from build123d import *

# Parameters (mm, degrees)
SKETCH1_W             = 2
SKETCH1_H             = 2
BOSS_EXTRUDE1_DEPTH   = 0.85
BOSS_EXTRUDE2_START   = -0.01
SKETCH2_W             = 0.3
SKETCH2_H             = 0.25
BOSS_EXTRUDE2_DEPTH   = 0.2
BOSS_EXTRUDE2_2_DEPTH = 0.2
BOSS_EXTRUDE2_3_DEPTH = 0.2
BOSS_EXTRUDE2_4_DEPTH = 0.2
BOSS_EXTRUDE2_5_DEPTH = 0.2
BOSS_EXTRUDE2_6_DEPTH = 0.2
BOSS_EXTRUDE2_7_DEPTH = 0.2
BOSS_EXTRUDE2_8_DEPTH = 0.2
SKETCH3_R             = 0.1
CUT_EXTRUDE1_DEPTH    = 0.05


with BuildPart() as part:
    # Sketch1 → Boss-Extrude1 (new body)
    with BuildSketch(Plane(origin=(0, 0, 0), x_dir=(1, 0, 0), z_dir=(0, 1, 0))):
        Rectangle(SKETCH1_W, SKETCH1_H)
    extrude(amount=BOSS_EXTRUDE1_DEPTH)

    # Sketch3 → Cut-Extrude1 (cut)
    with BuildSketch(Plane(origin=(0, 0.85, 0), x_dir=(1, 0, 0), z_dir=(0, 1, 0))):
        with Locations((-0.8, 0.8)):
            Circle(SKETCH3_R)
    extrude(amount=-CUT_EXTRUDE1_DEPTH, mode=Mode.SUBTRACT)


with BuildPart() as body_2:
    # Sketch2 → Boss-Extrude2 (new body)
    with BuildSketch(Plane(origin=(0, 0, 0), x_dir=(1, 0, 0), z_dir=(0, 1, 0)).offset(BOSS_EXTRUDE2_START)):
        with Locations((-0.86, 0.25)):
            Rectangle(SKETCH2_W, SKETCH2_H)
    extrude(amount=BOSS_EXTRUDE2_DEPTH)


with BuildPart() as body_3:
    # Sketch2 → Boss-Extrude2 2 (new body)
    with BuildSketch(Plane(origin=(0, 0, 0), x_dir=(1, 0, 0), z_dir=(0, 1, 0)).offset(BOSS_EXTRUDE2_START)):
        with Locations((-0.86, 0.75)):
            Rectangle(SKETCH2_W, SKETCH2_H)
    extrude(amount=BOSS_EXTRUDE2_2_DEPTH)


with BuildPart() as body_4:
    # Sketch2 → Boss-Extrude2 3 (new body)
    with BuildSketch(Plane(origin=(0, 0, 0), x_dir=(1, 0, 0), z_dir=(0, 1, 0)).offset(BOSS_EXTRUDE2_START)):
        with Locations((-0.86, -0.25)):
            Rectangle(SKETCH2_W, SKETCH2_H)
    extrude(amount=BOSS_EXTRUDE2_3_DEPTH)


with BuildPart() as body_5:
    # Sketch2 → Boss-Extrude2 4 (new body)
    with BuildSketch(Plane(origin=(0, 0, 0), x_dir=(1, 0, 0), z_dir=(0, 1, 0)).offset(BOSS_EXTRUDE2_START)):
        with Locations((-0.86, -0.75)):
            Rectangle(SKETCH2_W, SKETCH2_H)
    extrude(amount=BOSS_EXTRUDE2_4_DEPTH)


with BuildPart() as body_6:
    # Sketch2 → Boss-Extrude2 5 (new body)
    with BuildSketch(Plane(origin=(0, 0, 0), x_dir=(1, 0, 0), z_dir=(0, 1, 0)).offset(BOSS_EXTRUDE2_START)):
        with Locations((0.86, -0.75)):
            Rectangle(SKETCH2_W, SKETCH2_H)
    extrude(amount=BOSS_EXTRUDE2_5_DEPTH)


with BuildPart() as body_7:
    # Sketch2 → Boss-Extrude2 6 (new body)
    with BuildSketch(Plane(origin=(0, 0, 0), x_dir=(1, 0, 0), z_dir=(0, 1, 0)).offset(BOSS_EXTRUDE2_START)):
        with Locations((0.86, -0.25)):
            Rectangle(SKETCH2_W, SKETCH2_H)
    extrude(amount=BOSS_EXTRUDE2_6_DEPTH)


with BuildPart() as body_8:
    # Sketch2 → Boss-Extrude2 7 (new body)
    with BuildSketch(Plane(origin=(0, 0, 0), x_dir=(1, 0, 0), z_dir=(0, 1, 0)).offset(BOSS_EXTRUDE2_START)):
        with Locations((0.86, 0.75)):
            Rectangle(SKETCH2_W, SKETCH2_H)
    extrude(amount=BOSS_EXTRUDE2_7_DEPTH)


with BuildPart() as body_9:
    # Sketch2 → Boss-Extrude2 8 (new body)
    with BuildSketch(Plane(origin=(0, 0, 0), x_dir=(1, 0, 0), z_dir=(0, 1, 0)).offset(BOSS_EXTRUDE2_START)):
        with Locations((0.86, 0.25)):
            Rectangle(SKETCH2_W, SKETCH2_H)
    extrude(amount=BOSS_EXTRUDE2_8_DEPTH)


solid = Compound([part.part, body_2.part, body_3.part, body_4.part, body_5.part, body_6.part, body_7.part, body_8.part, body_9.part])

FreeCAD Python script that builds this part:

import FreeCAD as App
import Part
import Sketcher
from FreeCAD import Vector

doc = App.newDocument("Part")
body = doc.addObject("PartDesign::Body", "Body")

# Sketch on XZ plane
sketch1 = doc.addObject("Sketcher::SketchObject", "Sketch")
body.addObject(sketch1)
sketch1.AttachmentSupport = (doc.XZ_Plane, [""])
sketch1.MapMode = "FlatFace"
sketch1.addGeometry(Part.LineSegment(Vector(-1, -1, 0), Vector(-1, 1, 0)), False)
sketch1.addGeometry(Part.LineSegment(Vector(-1, 1, 0), Vector(1, 1, 0)), False)
sketch1.addGeometry(Part.LineSegment(Vector(1, 1, 0), Vector(1, -1, 0)), False)
sketch1.addGeometry(Part.LineSegment(Vector(1, -1, 0), Vector(-1, -1, 0)), False)
sketch1.addConstraint(Sketcher.Constraint("Coincident", 0, 2, 1, 1))
sketch1.addConstraint(Sketcher.Constraint("Coincident", 1, 2, 2, 1))
sketch1.addConstraint(Sketcher.Constraint("Coincident", 2, 2, 3, 1))
sketch1.addConstraint(Sketcher.Constraint("Coincident", 3, 2, 0, 1))
sketch1.addConstraint(Sketcher.Constraint("Vertical", 0))
sketch1.addConstraint(Sketcher.Constraint("Horizontal", 1))
sketch1.addConstraint(Sketcher.Constraint("Vertical", 2))
sketch1.addConstraint(Sketcher.Constraint("Horizontal", 3))
sketch1.addConstraint(Sketcher.Constraint("Symmetric", 0, 2, 2, 2, -1, 1))
sketch1.addConstraint(Sketcher.Constraint("Equal", 3, 0))
sketch1.addConstraint(Sketcher.Constraint("DistanceX", 1, 1, 1, 2, 2.0))
pad1 = doc.addObject("PartDesign::Pad", "Pad")
body.addObject(pad1)
pad1.Profile = sketch1
pad1.Length = 0.85
pad1.Reversed = True

# Sketch on XZ plane
sketch2 = doc.addObject("Sketcher::SketchObject", "Sketch001")
body.addObject(sketch2)
sketch2.AttachmentSupport = (doc.XZ_Plane, [""])
sketch2.MapMode = "FlatFace"
sketch2.AttachmentOffset = App.Placement(Vector(0, 0, -0.85), App.Rotation())
sketch2.addGeometry(Part.Circle(Vector(-0.8, -0.8, 0), Vector(0, 0, 1), 0.1), False)
sketch2.addConstraint(Sketcher.Constraint("Diameter", 0, 0.2))
sketch2.addConstraint(Sketcher.Constraint("DistanceX", 0, 3, -1, 1, 0.8))
sketch2.addConstraint(Sketcher.Constraint("DistanceY", 0, 3, -1, 1, 0.8))
pocket1 = doc.addObject("PartDesign::Pocket", "Pocket")
body.addObject(pocket1)
pocket1.Profile = sketch2
pocket1.Length = 0.05
pocket1.Reversed = True
body2 = doc.addObject("PartDesign::Body", "Body001")

# Sketch on XZ plane
sketch3 = doc.addObject("Sketcher::SketchObject", "Sketch002")
body2.addObject(sketch3)
sketch3.AttachmentSupport = (doc.getObject("XZ_Plane001"), [""])
sketch3.MapMode = "FlatFace"
sketch3.AttachmentOffset = App.Placement(Vector(0, 0, 0.01), App.Rotation())
sketch3.addGeometry(Part.LineSegment(Vector(-1.01, -0.375, 0), Vector(-1.01, -0.125, 0)), False)
sketch3.addGeometry(Part.LineSegment(Vector(-1.01, -0.125, 0), Vector(-0.71, -0.125, 0)), False)
sketch3.addGeometry(Part.LineSegment(Vector(-0.71, -0.125, 0), Vector(-0.71, -0.375, 0)), False)
sketch3.addGeometry(Part.LineSegment(Vector(-0.71, -0.375, 0), Vector(-1.01, -0.375, 0)), False)
sketch3.addConstraint(Sketcher.Constraint("Coincident", 0, 2, 1, 1))
sketch3.addConstraint(Sketcher.Constraint("Coincident", 1, 2, 2, 1))
sketch3.addConstraint(Sketcher.Constraint("Coincident", 2, 2, 3, 1))
sketch3.addConstraint(Sketcher.Constraint("Coincident", 3, 2, 0, 1))
sketch3.addConstraint(Sketcher.Constraint("Vertical", 0))
sketch3.addConstraint(Sketcher.Constraint("Horizontal", 1))
sketch3.addConstraint(Sketcher.Constraint("Vertical", 2))
sketch3.addConstraint(Sketcher.Constraint("Horizontal", 3))
sketch3.addConstraint(Sketcher.Constraint("DistanceX", 1, 1, 1, 2, 0.3))
sketch3.addConstraint(Sketcher.Constraint("DistanceY", 0, 1, 0, 2, 0.25))
sketch3.addConstraint(Sketcher.Constraint("DistanceX", 0, 2, -1, 1, 1.01))
sketch3.addConstraint(Sketcher.Constraint("DistanceY", 0, 2, -1, 1, 0.125))
pad2 = doc.addObject("PartDesign::Pad", "Pad001")
body2.addObject(pad2)
pad2.Profile = sketch3
pad2.Length = 0.2
pad2.Reversed = True
body3 = doc.addObject("PartDesign::Body", "Body002")

# Sketch on XZ plane
sketch4 = doc.addObject("Sketcher::SketchObject", "Sketch003")
body3.addObject(sketch4)
sketch4.AttachmentSupport = (doc.getObject("XZ_Plane002"), [""])
sketch4.MapMode = "FlatFace"
sketch4.AttachmentOffset = App.Placement(Vector(0, 0, 0.01), App.Rotation())
sketch4.addGeometry(Part.LineSegment(Vector(-1.01, -0.875, 0), Vector(-1.01, -0.625, 0)), False)
sketch4.addGeometry(Part.LineSegment(Vector(-1.01, -0.625, 0), Vector(-0.71, -0.625, 0)), False)
sketch4.addGeometry(Part.LineSegment(Vector(-0.71, -0.625, 0), Vector(-0.71, -0.875, 0)), False)
sketch4.addGeometry(Part.LineSegment(Vector(-0.71, -0.875, 0), Vector(-1.01, -0.875, 0)), False)
sketch4.addConstraint(Sketcher.Constraint("Coincident", 0, 2, 1, 1))
sketch4.addConstraint(Sketcher.Constraint("Coincident", 1, 2, 2, 1))
sketch4.addConstraint(Sketcher.Constraint("Coincident", 2, 2, 3, 1))
sketch4.addConstraint(Sketcher.Constraint("Coincident", 3, 2, 0, 1))
sketch4.addConstraint(Sketcher.Constraint("Vertical", 0))
sketch4.addConstraint(Sketcher.Constraint("Horizontal", 1))
sketch4.addConstraint(Sketcher.Constraint("Vertical", 2))
sketch4.addConstraint(Sketcher.Constraint("Horizontal", 3))
sketch4.addConstraint(Sketcher.Constraint("DistanceX", 1, 1, 1, 2, 0.3))
sketch4.addConstraint(Sketcher.Constraint("DistanceY", 0, 1, 0, 2, 0.25))
sketch4.addConstraint(Sketcher.Constraint("DistanceX", 0, 2, -1, 1, 1.01))
sketch4.addConstraint(Sketcher.Constraint("DistanceY", 0, 2, -1, 1, 0.625))
pad3 = doc.addObject("PartDesign::Pad", "Pad002")
body3.addObject(pad3)
pad3.Profile = sketch4
pad3.Length = 0.2
pad3.Reversed = True
body4 = doc.addObject("PartDesign::Body", "Body003")

# Sketch on XZ plane
sketch5 = doc.addObject("Sketcher::SketchObject", "Sketch004")
body4.addObject(sketch5)
sketch5.AttachmentSupport = (doc.getObject("XZ_Plane003"), [""])
sketch5.MapMode = "FlatFace"
sketch5.AttachmentOffset = App.Placement(Vector(0, 0, 0.01), App.Rotation())
sketch5.addGeometry(Part.LineSegment(Vector(-1.01, 0.125, 0), Vector(-1.01, 0.375, 0)), False)
sketch5.addGeometry(Part.LineSegment(Vector(-1.01, 0.375, 0), Vector(-0.71, 0.375, 0)), False)
sketch5.addGeometry(Part.LineSegment(Vector(-0.71, 0.375, 0), Vector(-0.71, 0.125, 0)), False)
sketch5.addGeometry(Part.LineSegment(Vector(-0.71, 0.125, 0), Vector(-1.01, 0.125, 0)), False)
sketch5.addConstraint(Sketcher.Constraint("Coincident", 0, 2, 1, 1))
sketch5.addConstraint(Sketcher.Constraint("Coincident", 1, 2, 2, 1))
sketch5.addConstraint(Sketcher.Constraint("Coincident", 2, 2, 3, 1))
sketch5.addConstraint(Sketcher.Constraint("Coincident", 3, 2, 0, 1))
sketch5.addConstraint(Sketcher.Constraint("Vertical", 0))
sketch5.addConstraint(Sketcher.Constraint("Horizontal", 1))
sketch5.addConstraint(Sketcher.Constraint("Vertical", 2))
sketch5.addConstraint(Sketcher.Constraint("Horizontal", 3))
sketch5.addConstraint(Sketcher.Constraint("DistanceX", 1, 1, 1, 2, 0.3))
sketch5.addConstraint(Sketcher.Constraint("DistanceY", 0, 1, 0, 2, 0.25))
sketch5.addConstraint(Sketcher.Constraint("DistanceX", 0, 2, -1, 1, 1.01))
sketch5.addConstraint(Sketcher.Constraint("DistanceY", -1, 1, 0, 2, 0.375))
pad4 = doc.addObject("PartDesign::Pad", "Pad003")
body4.addObject(pad4)
pad4.Profile = sketch5
pad4.Length = 0.2
pad4.Reversed = True
body5 = doc.addObject("PartDesign::Body", "Body004")

# Sketch on XZ plane
sketch6 = doc.addObject("Sketcher::SketchObject", "Sketch005")
body5.addObject(sketch6)
sketch6.AttachmentSupport = (doc.getObject("XZ_Plane004"), [""])
sketch6.MapMode = "FlatFace"
sketch6.AttachmentOffset = App.Placement(Vector(0, 0, 0.01), App.Rotation())
sketch6.addGeometry(Part.LineSegment(Vector(-1.01, 0.625, 0), Vector(-1.01, 0.875, 0)), False)
sketch6.addGeometry(Part.LineSegment(Vector(-1.01, 0.875, 0), Vector(-0.71, 0.875, 0)), False)
sketch6.addGeometry(Part.LineSegment(Vector(-0.71, 0.875, 0), Vector(-0.71, 0.625, 0)), False)
sketch6.addGeometry(Part.LineSegment(Vector(-0.71, 0.625, 0), Vector(-1.01, 0.625, 0)), False)
sketch6.addConstraint(Sketcher.Constraint("Coincident", 0, 2, 1, 1))
sketch6.addConstraint(Sketcher.Constraint("Coincident", 1, 2, 2, 1))
sketch6.addConstraint(Sketcher.Constraint("Coincident", 2, 2, 3, 1))
sketch6.addConstraint(Sketcher.Constraint("Coincident", 3, 2, 0, 1))
sketch6.addConstraint(Sketcher.Constraint("Vertical", 0))
sketch6.addConstraint(Sketcher.Constraint("Horizontal", 1))
sketch6.addConstraint(Sketcher.Constraint("Vertical", 2))
sketch6.addConstraint(Sketcher.Constraint("Horizontal", 3))
sketch6.addConstraint(Sketcher.Constraint("DistanceX", 1, 1, 1, 2, 0.3))
sketch6.addConstraint(Sketcher.Constraint("DistanceY", 0, 1, 0, 2, 0.25))
sketch6.addConstraint(Sketcher.Constraint("DistanceX", 0, 2, -1, 1, 1.01))
sketch6.addConstraint(Sketcher.Constraint("DistanceY", -1, 1, 0, 2, 0.875))
pad5 = doc.addObject("PartDesign::Pad", "Pad004")
body5.addObject(pad5)
pad5.Profile = sketch6
pad5.Length = 0.2
pad5.Reversed = True
body6 = doc.addObject("PartDesign::Body", "Body005")

# Sketch on XZ plane
sketch7 = doc.addObject("Sketcher::SketchObject", "Sketch006")
body6.addObject(sketch7)
sketch7.AttachmentSupport = (doc.getObject("XZ_Plane005"), [""])
sketch7.MapMode = "FlatFace"
sketch7.AttachmentOffset = App.Placement(Vector(0, 0, 0.01), App.Rotation())
sketch7.addGeometry(Part.LineSegment(Vector(0.71, 0.625, 0), Vector(0.71, 0.875, 0)), False)
sketch7.addGeometry(Part.LineSegment(Vector(0.71, 0.875, 0), Vector(1.01, 0.875, 0)), False)
sketch7.addGeometry(Part.LineSegment(Vector(1.01, 0.875, 0), Vector(1.01, 0.625, 0)), False)
sketch7.addGeometry(Part.LineSegment(Vector(1.01, 0.625, 0), Vector(0.71, 0.625, 0)), False)
sketch7.addConstraint(Sketcher.Constraint("Coincident", 0, 2, 1, 1))
sketch7.addConstraint(Sketcher.Constraint("Coincident", 1, 2, 2, 1))
sketch7.addConstraint(Sketcher.Constraint("Coincident", 2, 2, 3, 1))
sketch7.addConstraint(Sketcher.Constraint("Coincident", 3, 2, 0, 1))
sketch7.addConstraint(Sketcher.Constraint("Vertical", 0))
sketch7.addConstraint(Sketcher.Constraint("Horizontal", 1))
sketch7.addConstraint(Sketcher.Constraint("Vertical", 2))
sketch7.addConstraint(Sketcher.Constraint("Horizontal", 3))
sketch7.addConstraint(Sketcher.Constraint("DistanceX", 1, 1, 1, 2, 0.3))
sketch7.addConstraint(Sketcher.Constraint("DistanceY", 0, 1, 0, 2, 0.25))
sketch7.addConstraint(Sketcher.Constraint("DistanceX", -1, 1, 0, 2, 0.71))
sketch7.addConstraint(Sketcher.Constraint("DistanceY", -1, 1, 0, 2, 0.875))
pad6 = doc.addObject("PartDesign::Pad", "Pad005")
body6.addObject(pad6)
pad6.Profile = sketch7
pad6.Length = 0.2
pad6.Reversed = True
body7 = doc.addObject("PartDesign::Body", "Body006")

# Sketch on XZ plane
sketch8 = doc.addObject("Sketcher::SketchObject", "Sketch007")
body7.addObject(sketch8)
sketch8.AttachmentSupport = (doc.getObject("XZ_Plane006"), [""])
sketch8.MapMode = "FlatFace"
sketch8.AttachmentOffset = App.Placement(Vector(0, 0, 0.01), App.Rotation())
sketch8.addGeometry(Part.LineSegment(Vector(0.71, 0.125, 0), Vector(0.71, 0.375, 0)), False)
sketch8.addGeometry(Part.LineSegment(Vector(0.71, 0.375, 0), Vector(1.01, 0.375, 0)), False)
sketch8.addGeometry(Part.LineSegment(Vector(1.01, 0.375, 0), Vector(1.01, 0.125, 0)), False)
sketch8.addGeometry(Part.LineSegment(Vector(1.01, 0.125, 0), Vector(0.71, 0.125, 0)), False)
sketch8.addConstraint(Sketcher.Constraint("Coincident", 0, 2, 1, 1))
sketch8.addConstraint(Sketcher.Constraint("Coincident", 1, 2, 2, 1))
sketch8.addConstraint(Sketcher.Constraint("Coincident", 2, 2, 3, 1))
sketch8.addConstraint(Sketcher.Constraint("Coincident", 3, 2, 0, 1))
sketch8.addConstraint(Sketcher.Constraint("Vertical", 0))
sketch8.addConstraint(Sketcher.Constraint("Horizontal", 1))
sketch8.addConstraint(Sketcher.Constraint("Vertical", 2))
sketch8.addConstraint(Sketcher.Constraint("Horizontal", 3))
sketch8.addConstraint(Sketcher.Constraint("DistanceX", 1, 1, 1, 2, 0.3))
sketch8.addConstraint(Sketcher.Constraint("DistanceY", 0, 1, 0, 2, 0.25))
sketch8.addConstraint(Sketcher.Constraint("DistanceX", -1, 1, 0, 2, 0.71))
sketch8.addConstraint(Sketcher.Constraint("DistanceY", -1, 1, 0, 2, 0.375))
pad7 = doc.addObject("PartDesign::Pad", "Pad006")
body7.addObject(pad7)
pad7.Profile = sketch8
pad7.Length = 0.2
pad7.Reversed = True
body8 = doc.addObject("PartDesign::Body", "Body007")

# Sketch on XZ plane
sketch9 = doc.addObject("Sketcher::SketchObject", "Sketch008")
body8.addObject(sketch9)
sketch9.AttachmentSupport = (doc.getObject("XZ_Plane007"), [""])
sketch9.MapMode = "FlatFace"
sketch9.AttachmentOffset = App.Placement(Vector(0, 0, 0.01), App.Rotation())
sketch9.addGeometry(Part.LineSegment(Vector(0.71, -0.875, 0), Vector(0.71, -0.625, 0)), False)
sketch9.addGeometry(Part.LineSegment(Vector(0.71, -0.625, 0), Vector(1.01, -0.625, 0)), False)
sketch9.addGeometry(Part.LineSegment(Vector(1.01, -0.625, 0), Vector(1.01, -0.875, 0)), False)
sketch9.addGeometry(Part.LineSegment(Vector(1.01, -0.875, 0), Vector(0.71, -0.875, 0)), False)
sketch9.addConstraint(Sketcher.Constraint("Coincident", 0, 2, 1, 1))
sketch9.addConstraint(Sketcher.Constraint("Coincident", 1, 2, 2, 1))
sketch9.addConstraint(Sketcher.Constraint("Coincident", 2, 2, 3, 1))
sketch9.addConstraint(Sketcher.Constraint("Coincident", 3, 2, 0, 1))
sketch9.addConstraint(Sketcher.Constraint("Vertical", 0))
sketch9.addConstraint(Sketcher.Constraint("Horizontal", 1))
sketch9.addConstraint(Sketcher.Constraint("Vertical", 2))
sketch9.addConstraint(Sketcher.Constraint("Horizontal", 3))
sketch9.addConstraint(Sketcher.Constraint("DistanceX", 1, 1, 1, 2, 0.3))
sketch9.addConstraint(Sketcher.Constraint("DistanceY", 0, 1, 0, 2, 0.25))
sketch9.addConstraint(Sketcher.Constraint("DistanceX", -1, 1, 0, 2, 0.71))
sketch9.addConstraint(Sketcher.Constraint("DistanceY", 0, 2, -1, 1, 0.625))
pad8 = doc.addObject("PartDesign::Pad", "Pad007")
body8.addObject(pad8)
pad8.Profile = sketch9
pad8.Length = 0.2
pad8.Reversed = True
body9 = doc.addObject("PartDesign::Body", "Body008")

# Sketch on XZ plane
sketch10 = doc.addObject("Sketcher::SketchObject", "Sketch009")
body9.addObject(sketch10)
sketch10.AttachmentSupport = (doc.getObject("XZ_Plane008"), [""])
sketch10.MapMode = "FlatFace"
sketch10.AttachmentOffset = App.Placement(Vector(0, 0, 0.01), App.Rotation())
sketch10.addGeometry(Part.LineSegment(Vector(0.71, -0.375, 0), Vector(0.71, -0.125, 0)), False)
sketch10.addGeometry(Part.LineSegment(Vector(0.71, -0.125, 0), Vector(1.01, -0.125, 0)), False)
sketch10.addGeometry(Part.LineSegment(Vector(1.01, -0.125, 0), Vector(1.01, -0.375, 0)), False)
sketch10.addGeometry(Part.LineSegment(Vector(1.01, -0.375, 0), Vector(0.71, -0.375, 0)), False)
sketch10.addConstraint(Sketcher.Constraint("Coincident", 0, 2, 1, 1))
sketch10.addConstraint(Sketcher.Constraint("Coincident", 1, 2, 2, 1))
sketch10.addConstraint(Sketcher.Constraint("Coincident", 2, 2, 3, 1))
sketch10.addConstraint(Sketcher.Constraint("Coincident", 3, 2, 0, 1))
sketch10.addConstraint(Sketcher.Constraint("Vertical", 0))
sketch10.addConstraint(Sketcher.Constraint("Horizontal", 1))
sketch10.addConstraint(Sketcher.Constraint("Vertical", 2))
sketch10.addConstraint(Sketcher.Constraint("Horizontal", 3))
sketch10.addConstraint(Sketcher.Constraint("DistanceX", 1, 1, 1, 2, 0.3))
sketch10.addConstraint(Sketcher.Constraint("DistanceY", 0, 1, 0, 2, 0.25))
sketch10.addConstraint(Sketcher.Constraint("DistanceX", -1, 1, 0, 2, 0.71))
sketch10.addConstraint(Sketcher.Constraint("DistanceY", 0, 2, -1, 1, 0.125))
pad9 = doc.addObject("PartDesign::Pad", "Pad008")
body9.addObject(pad9)
pad9.Profile = sketch10
pad9.Length = 0.2
pad9.Reversed = True

doc.recompute()
